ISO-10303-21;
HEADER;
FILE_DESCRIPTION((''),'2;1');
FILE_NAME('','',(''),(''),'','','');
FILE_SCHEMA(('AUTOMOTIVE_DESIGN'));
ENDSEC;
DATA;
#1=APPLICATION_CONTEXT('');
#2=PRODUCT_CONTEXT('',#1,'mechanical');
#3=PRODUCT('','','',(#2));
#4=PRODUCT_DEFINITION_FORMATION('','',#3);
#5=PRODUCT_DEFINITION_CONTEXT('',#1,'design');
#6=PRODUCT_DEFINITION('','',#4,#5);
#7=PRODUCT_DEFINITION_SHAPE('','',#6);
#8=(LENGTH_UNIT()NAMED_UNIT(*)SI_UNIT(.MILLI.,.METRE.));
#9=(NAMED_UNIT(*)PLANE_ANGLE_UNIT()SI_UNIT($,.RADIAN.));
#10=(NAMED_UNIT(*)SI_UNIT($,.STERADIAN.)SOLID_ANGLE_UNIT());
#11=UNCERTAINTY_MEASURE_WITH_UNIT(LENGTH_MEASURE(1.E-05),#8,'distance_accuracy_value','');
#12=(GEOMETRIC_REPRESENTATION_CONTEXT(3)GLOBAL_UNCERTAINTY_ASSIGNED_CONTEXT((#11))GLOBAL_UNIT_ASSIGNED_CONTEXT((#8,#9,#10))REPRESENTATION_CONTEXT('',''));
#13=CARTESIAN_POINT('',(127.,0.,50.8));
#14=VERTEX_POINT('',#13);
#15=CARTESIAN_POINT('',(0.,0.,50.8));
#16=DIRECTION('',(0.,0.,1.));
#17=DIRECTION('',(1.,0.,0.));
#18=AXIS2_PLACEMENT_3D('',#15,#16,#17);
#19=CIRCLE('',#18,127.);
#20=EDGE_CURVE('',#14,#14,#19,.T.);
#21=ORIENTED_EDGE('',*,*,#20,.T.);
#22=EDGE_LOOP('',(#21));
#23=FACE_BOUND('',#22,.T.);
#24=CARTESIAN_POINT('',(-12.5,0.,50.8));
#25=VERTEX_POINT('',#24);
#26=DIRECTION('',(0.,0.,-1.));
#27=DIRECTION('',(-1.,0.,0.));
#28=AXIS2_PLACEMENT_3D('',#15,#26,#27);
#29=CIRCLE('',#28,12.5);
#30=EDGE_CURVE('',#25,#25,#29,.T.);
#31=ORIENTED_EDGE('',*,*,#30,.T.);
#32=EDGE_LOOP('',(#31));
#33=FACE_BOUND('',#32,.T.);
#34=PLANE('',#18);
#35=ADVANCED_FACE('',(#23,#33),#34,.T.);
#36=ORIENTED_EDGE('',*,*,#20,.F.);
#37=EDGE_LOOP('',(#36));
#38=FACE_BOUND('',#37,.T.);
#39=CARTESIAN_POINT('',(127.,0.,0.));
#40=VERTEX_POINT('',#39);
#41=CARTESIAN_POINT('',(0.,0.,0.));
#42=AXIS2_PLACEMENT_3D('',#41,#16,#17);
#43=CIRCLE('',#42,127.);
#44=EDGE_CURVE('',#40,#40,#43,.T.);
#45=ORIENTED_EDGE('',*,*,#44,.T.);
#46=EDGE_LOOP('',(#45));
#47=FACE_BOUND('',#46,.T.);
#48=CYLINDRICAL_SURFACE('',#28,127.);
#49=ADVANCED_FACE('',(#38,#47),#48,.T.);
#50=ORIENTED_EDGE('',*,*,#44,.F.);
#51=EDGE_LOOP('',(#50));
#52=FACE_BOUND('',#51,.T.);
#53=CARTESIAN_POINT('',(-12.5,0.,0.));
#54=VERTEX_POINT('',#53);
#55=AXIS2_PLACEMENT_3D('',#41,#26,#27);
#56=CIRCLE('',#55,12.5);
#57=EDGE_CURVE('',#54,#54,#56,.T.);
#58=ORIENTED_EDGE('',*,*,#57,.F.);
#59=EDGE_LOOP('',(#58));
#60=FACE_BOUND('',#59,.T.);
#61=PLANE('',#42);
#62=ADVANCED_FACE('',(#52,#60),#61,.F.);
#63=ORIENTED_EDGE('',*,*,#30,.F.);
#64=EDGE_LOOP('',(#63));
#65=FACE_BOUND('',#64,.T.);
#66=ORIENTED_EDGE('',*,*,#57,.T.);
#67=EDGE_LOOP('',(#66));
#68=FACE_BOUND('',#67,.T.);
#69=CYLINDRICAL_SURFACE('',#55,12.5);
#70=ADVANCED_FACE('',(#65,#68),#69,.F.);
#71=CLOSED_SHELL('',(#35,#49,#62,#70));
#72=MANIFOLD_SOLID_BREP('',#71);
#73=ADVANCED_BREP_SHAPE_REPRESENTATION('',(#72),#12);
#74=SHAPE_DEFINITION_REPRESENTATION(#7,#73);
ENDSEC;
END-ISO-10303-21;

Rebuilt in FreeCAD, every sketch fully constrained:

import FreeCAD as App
import Part
import Sketcher
from FreeCAD import Vector
Q = App.Units.Quantity

doc = App.newDocument("Part")
params = doc.addObject("Spreadsheet::Sheet", "Params")
for row, (alias, value) in enumerate([
    ("sketch1_diameter", "10 in"),
    ("pad1_length", "2 in"),
    ("hole_diameter", "25 mm"),
], start=1):
    params.set(f"A{row}", alias)
    params.set(f"B{row}", "=" + value)
    params.setAlias(f"B{row}", alias)

body = doc.addObject("PartDesign::Body", "Body")

sketch1 = doc.addObject("Sketcher::SketchObject", "Sketch")
body.addObject(sketch1)
sketch1.AttachmentSupport = (doc.XY_Plane, [""])
sketch1.MapMode = "FlatFace"
sketch1.addGeometry(Part.Circle(Vector(0, 0, 0), Vector(0, 0, 1), 127), False)
sketch1.addConstraint([
    Sketcher.Constraint("Coincident", 0, 3, -1, 1),
    Sketcher.Constraint("Diameter", 0, Q("10 in")),
])
sketch1.setExpression("Constraints[1]", "Params.sketch1_diameter")
pad1 = doc.addObject("PartDesign::Pad", "Pad")
body.addObject(pad1)
pad1.Profile = sketch1
pad1.setExpression("Length", "Params.pad1_length")

sketch2 = doc.addObject("Sketcher::SketchObject", "Sketch001")
body.addObject(sketch2)
sketch2.AttachmentSupport = (doc.XY_Plane, [""])
sketch2.MapMode = "FlatFace"
sketch2.addGeometry(Part.Circle(Vector(0, 0, 0), Vector(0, 0, 1), 12), False)
sketch2.addConstraint([
    Sketcher.Constraint("Coincident", 0, 3, -1, 1),
    Sketcher.Constraint("Diameter", 0, 25.0),
])
doc.recompute()
hole = doc.addObject("PartDesign::Hole", "Hole")
body.addObject(hole)
hole.Profile = sketch2
hole.ThreadType = "None"
hole.setExpression("Diameter", "Params.hole_diameter")
hole.DepthType = "ThroughAll"
hole.Reversed = True

doc.recompute()
